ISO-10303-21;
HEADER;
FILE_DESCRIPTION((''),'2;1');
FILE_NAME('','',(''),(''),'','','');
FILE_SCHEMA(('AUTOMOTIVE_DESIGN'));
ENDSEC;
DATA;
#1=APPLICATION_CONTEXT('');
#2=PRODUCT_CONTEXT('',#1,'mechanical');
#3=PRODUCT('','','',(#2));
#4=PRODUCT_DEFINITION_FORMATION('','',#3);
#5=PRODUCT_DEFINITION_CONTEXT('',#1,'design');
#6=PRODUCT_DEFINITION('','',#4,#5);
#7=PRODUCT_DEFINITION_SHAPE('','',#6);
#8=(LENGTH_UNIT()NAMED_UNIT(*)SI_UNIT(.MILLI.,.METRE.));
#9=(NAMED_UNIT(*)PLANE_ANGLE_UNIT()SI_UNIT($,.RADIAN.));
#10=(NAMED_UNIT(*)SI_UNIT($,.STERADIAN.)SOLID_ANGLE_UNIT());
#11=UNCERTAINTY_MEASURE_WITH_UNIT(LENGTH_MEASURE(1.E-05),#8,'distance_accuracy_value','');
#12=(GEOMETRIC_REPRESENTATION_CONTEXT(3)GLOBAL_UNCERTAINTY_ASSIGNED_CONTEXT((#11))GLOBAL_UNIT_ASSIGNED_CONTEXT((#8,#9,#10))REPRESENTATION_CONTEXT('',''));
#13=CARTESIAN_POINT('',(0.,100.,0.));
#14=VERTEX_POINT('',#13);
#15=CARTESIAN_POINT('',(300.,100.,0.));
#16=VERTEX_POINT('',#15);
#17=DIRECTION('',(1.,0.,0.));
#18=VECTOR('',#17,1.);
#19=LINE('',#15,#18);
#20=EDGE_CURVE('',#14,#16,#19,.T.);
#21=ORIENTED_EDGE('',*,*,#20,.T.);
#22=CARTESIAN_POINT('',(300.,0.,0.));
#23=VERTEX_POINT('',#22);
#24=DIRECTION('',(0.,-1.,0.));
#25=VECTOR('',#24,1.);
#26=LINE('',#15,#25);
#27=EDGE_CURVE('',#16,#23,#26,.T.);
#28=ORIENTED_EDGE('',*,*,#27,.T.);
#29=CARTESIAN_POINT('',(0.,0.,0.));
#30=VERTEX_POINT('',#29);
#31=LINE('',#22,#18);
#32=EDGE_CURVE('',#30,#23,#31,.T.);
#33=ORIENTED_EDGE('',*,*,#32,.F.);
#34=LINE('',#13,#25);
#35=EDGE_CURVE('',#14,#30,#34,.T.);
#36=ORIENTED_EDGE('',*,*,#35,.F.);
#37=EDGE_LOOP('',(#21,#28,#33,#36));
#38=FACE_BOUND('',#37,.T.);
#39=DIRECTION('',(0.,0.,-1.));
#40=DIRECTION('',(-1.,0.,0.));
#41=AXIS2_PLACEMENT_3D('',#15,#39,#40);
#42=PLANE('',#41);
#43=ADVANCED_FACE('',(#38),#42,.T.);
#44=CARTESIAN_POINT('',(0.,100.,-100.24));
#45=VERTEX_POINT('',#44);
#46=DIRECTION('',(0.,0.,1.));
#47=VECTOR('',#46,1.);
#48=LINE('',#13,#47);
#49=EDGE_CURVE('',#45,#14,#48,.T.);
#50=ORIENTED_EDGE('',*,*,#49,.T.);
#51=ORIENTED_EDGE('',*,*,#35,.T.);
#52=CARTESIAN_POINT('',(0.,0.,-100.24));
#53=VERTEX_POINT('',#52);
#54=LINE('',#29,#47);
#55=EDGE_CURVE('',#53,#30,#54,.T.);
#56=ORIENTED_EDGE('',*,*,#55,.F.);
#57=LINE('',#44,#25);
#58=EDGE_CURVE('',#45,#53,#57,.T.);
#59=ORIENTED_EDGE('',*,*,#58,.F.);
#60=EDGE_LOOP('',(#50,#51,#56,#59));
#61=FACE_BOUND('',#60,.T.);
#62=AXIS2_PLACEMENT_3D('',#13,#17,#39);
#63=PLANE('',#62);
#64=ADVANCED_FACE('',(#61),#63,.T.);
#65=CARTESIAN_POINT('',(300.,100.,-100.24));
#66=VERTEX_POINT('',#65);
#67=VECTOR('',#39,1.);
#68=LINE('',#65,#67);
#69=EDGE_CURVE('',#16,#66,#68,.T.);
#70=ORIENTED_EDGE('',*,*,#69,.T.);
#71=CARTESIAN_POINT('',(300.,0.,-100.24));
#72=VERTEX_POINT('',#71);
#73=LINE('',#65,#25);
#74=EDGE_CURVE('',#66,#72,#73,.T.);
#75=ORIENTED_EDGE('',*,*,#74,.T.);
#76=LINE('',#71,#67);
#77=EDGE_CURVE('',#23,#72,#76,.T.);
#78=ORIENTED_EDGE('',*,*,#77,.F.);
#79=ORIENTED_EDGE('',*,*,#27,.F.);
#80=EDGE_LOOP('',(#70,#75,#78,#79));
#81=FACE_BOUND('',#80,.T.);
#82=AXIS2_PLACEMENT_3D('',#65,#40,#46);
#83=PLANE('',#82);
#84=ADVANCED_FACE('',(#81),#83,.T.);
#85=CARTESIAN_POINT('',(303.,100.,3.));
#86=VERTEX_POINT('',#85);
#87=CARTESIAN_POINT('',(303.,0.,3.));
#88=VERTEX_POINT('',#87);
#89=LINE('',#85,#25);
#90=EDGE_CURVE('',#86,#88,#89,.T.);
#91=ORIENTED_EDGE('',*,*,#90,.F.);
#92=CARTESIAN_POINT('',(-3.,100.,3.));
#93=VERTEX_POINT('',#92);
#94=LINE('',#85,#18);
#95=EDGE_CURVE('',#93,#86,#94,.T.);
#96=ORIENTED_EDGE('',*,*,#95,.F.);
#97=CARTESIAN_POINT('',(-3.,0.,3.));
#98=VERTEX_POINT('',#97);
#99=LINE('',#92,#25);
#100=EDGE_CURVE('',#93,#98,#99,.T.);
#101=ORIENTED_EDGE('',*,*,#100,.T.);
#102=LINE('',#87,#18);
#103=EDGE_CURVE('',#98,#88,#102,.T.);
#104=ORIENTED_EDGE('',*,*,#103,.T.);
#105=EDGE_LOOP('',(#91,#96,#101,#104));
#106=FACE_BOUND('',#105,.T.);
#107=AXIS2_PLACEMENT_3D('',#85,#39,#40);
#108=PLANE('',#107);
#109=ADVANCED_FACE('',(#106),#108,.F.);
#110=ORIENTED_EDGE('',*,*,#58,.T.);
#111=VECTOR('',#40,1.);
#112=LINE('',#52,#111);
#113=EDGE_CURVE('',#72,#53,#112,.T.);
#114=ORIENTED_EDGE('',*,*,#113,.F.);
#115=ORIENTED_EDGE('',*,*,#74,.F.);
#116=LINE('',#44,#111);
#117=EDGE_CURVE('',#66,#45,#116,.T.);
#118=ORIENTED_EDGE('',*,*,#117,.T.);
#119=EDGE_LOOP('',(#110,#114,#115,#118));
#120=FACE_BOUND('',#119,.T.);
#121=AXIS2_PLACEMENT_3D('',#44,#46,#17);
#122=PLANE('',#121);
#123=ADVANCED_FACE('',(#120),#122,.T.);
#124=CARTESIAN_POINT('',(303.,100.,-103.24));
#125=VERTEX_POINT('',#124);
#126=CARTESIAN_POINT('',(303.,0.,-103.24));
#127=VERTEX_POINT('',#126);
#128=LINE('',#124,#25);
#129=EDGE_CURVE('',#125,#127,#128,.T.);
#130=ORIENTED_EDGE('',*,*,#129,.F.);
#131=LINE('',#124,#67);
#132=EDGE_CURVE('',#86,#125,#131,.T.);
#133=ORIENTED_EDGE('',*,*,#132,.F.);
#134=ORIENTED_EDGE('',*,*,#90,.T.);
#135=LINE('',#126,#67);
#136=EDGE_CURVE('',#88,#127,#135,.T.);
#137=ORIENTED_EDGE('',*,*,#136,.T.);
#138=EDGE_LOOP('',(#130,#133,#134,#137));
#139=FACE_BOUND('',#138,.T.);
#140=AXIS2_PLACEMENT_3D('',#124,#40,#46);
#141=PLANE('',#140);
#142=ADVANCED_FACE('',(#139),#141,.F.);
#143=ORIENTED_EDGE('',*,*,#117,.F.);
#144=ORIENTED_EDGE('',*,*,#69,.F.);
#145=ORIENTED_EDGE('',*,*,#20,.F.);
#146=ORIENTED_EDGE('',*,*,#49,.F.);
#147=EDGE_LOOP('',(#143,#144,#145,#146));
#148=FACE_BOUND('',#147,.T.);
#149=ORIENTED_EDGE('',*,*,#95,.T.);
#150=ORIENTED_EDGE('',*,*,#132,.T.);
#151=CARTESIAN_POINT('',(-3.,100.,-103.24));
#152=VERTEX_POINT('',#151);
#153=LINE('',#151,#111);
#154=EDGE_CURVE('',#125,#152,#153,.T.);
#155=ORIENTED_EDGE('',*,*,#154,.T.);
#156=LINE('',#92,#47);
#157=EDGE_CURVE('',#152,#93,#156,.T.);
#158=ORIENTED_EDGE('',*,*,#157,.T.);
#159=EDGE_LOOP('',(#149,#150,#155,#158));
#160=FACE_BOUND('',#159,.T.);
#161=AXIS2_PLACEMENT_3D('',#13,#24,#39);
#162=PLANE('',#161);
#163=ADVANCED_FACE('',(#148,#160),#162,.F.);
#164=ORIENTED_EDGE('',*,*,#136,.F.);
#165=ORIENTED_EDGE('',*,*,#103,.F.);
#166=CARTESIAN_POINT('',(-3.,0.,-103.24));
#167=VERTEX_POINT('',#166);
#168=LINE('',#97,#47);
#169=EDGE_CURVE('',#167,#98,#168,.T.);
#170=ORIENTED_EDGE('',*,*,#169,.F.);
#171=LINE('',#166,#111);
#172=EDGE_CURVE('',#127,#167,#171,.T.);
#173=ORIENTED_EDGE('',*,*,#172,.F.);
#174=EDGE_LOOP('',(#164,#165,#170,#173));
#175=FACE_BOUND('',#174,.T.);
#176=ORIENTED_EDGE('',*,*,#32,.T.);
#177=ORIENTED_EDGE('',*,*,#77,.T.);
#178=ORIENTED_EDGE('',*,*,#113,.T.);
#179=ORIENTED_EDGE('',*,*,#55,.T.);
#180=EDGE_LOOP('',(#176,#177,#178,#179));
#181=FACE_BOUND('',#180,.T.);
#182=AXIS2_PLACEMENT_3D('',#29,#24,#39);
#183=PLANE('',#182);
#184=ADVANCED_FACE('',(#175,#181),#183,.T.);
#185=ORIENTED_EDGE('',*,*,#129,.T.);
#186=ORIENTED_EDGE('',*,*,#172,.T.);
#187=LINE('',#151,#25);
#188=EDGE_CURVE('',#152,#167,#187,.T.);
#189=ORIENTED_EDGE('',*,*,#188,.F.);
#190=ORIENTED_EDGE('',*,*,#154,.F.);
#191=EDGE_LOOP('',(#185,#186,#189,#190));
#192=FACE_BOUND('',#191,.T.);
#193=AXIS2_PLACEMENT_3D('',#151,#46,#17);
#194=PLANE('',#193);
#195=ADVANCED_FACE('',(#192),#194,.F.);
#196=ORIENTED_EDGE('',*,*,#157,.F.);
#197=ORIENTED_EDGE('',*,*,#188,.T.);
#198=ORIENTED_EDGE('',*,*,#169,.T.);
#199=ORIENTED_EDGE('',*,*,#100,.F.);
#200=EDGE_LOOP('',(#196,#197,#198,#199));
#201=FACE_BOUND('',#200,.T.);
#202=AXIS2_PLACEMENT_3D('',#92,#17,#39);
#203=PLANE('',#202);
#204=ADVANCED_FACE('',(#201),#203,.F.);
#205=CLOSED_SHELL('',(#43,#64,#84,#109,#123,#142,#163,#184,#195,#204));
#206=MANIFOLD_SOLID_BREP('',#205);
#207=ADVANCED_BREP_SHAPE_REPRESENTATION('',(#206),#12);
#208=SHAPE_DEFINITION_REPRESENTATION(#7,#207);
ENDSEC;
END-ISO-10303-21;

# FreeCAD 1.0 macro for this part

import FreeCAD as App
import Part
import Sketcher

V = App.Vector


def add_polygon(sketch, points):
    """Adds a closed chain of lines whose ends are joined by coincident constraints."""
    first, n = sketch.GeometryCount, len(points)
    for a, b in zip(points, points[1:] + points[:1]):
        sketch.addGeometry(Part.LineSegment(App.Vector(*a, 0), App.Vector(*b, 0)), False)
    for i in range(n):
        sketch.addConstraint(Sketcher.Constraint("Coincident", first + i, 2, first + (i + 1) % n, 1))

doc = App.newDocument("Part")
body = doc.addObject("PartDesign::Body", "Body")

# Sketch on XZ plane
sketch1 = doc.addObject("Sketcher::SketchObject", "Sketch")
body.addObject(sketch1)
sketch1.AttachmentSupport = (doc.XZ_Plane, [""])
sketch1.MapMode = "FlatFace"
add_polygon(sketch1, [(-3, -103.24), (-3, 3), (303, 3), (303, -103.24)])  # lines 0-3
add_polygon(sketch1, [(300, 0), (0, 0), (0, -100.24), (300, -100.24)])  # lines 4-7
sketch1.addConstraint([
    Sketcher.Constraint("Vertical", 0),
    Sketcher.Constraint("Horizontal", 1),
    Sketcher.Constraint("Vertical", 2),
    Sketcher.Constraint("Horizontal", 3),
    Sketcher.Constraint("Horizontal", 4),
    Sketcher.Constraint("Vertical", 5),
    Sketcher.Constraint("Horizontal", 6),
    Sketcher.Constraint("Vertical", 7),
    Sketcher.Constraint("Coincident", 4, 2, -1, 1),
    Sketcher.Constraint("DistanceX", 1, 1, 1, 2, 306.0),
    Sketcher.Constraint("DistanceX", 4, 2, 4, 1, 300.0),
    Sketcher.Constraint("DistanceX", 0, 2, -1, 1, 3.0),
    Sketcher.Constraint("DistanceY", -1, 1, 0, 2, 3.0),
    Sketcher.Constraint("DistanceY", 3, 2, 5, 2, 3.0),
    Sketcher.Constraint("DistanceY", 0, 1, 0, 2, 106.24),
])
pad1 = doc.addObject("PartDesign::Pad", "Pad")
body.addObject(pad1)
pad1.Profile = sketch1
pad1.Length = 100
pad1.Reversed = True

doc.recompute()
